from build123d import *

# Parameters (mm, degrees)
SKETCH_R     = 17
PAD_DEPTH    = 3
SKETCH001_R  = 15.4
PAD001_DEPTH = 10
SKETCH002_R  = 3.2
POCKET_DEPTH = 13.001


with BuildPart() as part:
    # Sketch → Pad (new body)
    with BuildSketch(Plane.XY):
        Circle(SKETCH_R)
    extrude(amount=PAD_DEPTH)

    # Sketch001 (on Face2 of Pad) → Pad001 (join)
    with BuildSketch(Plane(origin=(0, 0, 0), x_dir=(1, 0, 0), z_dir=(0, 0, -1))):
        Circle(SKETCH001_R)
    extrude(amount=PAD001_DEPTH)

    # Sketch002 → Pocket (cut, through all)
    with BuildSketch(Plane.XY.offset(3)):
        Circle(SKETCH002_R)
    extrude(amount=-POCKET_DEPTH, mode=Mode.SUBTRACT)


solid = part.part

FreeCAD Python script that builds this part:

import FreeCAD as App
import Part
import Sketcher
from FreeCAD import Vector
Q = App.Units.Quantity

doc = App.newDocument("Part")
params = doc.addObject("Spreadsheet::Sheet", "Params")
for row, (alias, value) in enumerate([
    ("sketch1_diameter", "34 mm"),
    ("pad1_length", "3 mm"),
    ("sketch2_diameter", "30.8 mm"),
    ("pad2_length", "10 mm"),
    ("sketch3_diameter", "6.4 mm"),
], start=1):
    params.set(f"A{row}", alias)
    params.set(f"B{row}", "=" + value)
    params.setAlias(f"B{row}", alias)

body = doc.addObject("PartDesign::Body", "Body")

# Sketch on XY plane
sketch1 = body.newObject("Sketcher::SketchObject", "Sketch")
sketch1.AttachmentSupport = (doc.getObject("XY_Plane"), [""])
sketch1.MapMode = "FlatFace"
sketch1.addGeometry(Part.Circle(Vector(0, 0, 0), Vector(0, 0, 1), 17), False)
sketch1.addConstraint([
    Sketcher.Constraint("Coincident", 0, 3, -1, 1),
    Sketcher.Constraint("Diameter", 0, Q("34 mm")),
])
sketch1.setExpression("Constraints[1]", "Params.sketch1_diameter")
pad1 = body.newObject("PartDesign::Pad", "Pad")
pad1.Profile = sketch1
pad1.setExpression("Length", "Params.pad1_length")

# Sketch on XY plane
sketch2 = body.newObject("Sketcher::SketchObject", "Sketch001")
sketch2.AttachmentSupport = (doc.getObject("XY_Plane"), [""])
sketch2.MapMode = "FlatFace"
sketch2.addGeometry(Part.Circle(Vector(0, 0, 0), Vector(0, 0, 1), 15.4), False)
sketch2.addConstraint([
    Sketcher.Constraint("Coincident", 0, 3, -1, 1),
    Sketcher.Constraint("Diameter", 0, Q("30.8 mm")),
])
sketch2.setExpression("Constraints[1]", "Params.sketch2_diameter")
pad2 = body.newObject("PartDesign::Pad", "Pad001")
pad2.Profile = sketch2
pad2.setExpression("Length", "Params.pad2_length")
pad2.Reversed = True

# Sketch on XY plane
sketch3 = body.newObject("Sketcher::SketchObject", "Sketch002")
sketch3.AttachmentSupport = (doc.getObject("XY_Plane"), [""])
sketch3.MapMode = "FlatFace"
sketch3.AttachmentOffset = App.Placement(Vector(0, 0, 3), App.Rotation())
sketch3.addGeometry(Part.Circle(Vector(0, 0, 0), Vector(0, 0, 1), 3.2), False)
sketch3.addConstraint([
    Sketcher.Constraint("Coincident", 0, 3, -1, 1),
    Sketcher.Constraint("Diameter", 0, Q("6.4 mm")),
])
sketch3.setExpression("Constraints[1]", "Params.sketch3_diameter")
pocket1 = body.newObject("PartDesign::Pocket", "Pocket")
pocket1.Profile = sketch3
pocket1.Type = "ThroughAll"

doc.recompute()
